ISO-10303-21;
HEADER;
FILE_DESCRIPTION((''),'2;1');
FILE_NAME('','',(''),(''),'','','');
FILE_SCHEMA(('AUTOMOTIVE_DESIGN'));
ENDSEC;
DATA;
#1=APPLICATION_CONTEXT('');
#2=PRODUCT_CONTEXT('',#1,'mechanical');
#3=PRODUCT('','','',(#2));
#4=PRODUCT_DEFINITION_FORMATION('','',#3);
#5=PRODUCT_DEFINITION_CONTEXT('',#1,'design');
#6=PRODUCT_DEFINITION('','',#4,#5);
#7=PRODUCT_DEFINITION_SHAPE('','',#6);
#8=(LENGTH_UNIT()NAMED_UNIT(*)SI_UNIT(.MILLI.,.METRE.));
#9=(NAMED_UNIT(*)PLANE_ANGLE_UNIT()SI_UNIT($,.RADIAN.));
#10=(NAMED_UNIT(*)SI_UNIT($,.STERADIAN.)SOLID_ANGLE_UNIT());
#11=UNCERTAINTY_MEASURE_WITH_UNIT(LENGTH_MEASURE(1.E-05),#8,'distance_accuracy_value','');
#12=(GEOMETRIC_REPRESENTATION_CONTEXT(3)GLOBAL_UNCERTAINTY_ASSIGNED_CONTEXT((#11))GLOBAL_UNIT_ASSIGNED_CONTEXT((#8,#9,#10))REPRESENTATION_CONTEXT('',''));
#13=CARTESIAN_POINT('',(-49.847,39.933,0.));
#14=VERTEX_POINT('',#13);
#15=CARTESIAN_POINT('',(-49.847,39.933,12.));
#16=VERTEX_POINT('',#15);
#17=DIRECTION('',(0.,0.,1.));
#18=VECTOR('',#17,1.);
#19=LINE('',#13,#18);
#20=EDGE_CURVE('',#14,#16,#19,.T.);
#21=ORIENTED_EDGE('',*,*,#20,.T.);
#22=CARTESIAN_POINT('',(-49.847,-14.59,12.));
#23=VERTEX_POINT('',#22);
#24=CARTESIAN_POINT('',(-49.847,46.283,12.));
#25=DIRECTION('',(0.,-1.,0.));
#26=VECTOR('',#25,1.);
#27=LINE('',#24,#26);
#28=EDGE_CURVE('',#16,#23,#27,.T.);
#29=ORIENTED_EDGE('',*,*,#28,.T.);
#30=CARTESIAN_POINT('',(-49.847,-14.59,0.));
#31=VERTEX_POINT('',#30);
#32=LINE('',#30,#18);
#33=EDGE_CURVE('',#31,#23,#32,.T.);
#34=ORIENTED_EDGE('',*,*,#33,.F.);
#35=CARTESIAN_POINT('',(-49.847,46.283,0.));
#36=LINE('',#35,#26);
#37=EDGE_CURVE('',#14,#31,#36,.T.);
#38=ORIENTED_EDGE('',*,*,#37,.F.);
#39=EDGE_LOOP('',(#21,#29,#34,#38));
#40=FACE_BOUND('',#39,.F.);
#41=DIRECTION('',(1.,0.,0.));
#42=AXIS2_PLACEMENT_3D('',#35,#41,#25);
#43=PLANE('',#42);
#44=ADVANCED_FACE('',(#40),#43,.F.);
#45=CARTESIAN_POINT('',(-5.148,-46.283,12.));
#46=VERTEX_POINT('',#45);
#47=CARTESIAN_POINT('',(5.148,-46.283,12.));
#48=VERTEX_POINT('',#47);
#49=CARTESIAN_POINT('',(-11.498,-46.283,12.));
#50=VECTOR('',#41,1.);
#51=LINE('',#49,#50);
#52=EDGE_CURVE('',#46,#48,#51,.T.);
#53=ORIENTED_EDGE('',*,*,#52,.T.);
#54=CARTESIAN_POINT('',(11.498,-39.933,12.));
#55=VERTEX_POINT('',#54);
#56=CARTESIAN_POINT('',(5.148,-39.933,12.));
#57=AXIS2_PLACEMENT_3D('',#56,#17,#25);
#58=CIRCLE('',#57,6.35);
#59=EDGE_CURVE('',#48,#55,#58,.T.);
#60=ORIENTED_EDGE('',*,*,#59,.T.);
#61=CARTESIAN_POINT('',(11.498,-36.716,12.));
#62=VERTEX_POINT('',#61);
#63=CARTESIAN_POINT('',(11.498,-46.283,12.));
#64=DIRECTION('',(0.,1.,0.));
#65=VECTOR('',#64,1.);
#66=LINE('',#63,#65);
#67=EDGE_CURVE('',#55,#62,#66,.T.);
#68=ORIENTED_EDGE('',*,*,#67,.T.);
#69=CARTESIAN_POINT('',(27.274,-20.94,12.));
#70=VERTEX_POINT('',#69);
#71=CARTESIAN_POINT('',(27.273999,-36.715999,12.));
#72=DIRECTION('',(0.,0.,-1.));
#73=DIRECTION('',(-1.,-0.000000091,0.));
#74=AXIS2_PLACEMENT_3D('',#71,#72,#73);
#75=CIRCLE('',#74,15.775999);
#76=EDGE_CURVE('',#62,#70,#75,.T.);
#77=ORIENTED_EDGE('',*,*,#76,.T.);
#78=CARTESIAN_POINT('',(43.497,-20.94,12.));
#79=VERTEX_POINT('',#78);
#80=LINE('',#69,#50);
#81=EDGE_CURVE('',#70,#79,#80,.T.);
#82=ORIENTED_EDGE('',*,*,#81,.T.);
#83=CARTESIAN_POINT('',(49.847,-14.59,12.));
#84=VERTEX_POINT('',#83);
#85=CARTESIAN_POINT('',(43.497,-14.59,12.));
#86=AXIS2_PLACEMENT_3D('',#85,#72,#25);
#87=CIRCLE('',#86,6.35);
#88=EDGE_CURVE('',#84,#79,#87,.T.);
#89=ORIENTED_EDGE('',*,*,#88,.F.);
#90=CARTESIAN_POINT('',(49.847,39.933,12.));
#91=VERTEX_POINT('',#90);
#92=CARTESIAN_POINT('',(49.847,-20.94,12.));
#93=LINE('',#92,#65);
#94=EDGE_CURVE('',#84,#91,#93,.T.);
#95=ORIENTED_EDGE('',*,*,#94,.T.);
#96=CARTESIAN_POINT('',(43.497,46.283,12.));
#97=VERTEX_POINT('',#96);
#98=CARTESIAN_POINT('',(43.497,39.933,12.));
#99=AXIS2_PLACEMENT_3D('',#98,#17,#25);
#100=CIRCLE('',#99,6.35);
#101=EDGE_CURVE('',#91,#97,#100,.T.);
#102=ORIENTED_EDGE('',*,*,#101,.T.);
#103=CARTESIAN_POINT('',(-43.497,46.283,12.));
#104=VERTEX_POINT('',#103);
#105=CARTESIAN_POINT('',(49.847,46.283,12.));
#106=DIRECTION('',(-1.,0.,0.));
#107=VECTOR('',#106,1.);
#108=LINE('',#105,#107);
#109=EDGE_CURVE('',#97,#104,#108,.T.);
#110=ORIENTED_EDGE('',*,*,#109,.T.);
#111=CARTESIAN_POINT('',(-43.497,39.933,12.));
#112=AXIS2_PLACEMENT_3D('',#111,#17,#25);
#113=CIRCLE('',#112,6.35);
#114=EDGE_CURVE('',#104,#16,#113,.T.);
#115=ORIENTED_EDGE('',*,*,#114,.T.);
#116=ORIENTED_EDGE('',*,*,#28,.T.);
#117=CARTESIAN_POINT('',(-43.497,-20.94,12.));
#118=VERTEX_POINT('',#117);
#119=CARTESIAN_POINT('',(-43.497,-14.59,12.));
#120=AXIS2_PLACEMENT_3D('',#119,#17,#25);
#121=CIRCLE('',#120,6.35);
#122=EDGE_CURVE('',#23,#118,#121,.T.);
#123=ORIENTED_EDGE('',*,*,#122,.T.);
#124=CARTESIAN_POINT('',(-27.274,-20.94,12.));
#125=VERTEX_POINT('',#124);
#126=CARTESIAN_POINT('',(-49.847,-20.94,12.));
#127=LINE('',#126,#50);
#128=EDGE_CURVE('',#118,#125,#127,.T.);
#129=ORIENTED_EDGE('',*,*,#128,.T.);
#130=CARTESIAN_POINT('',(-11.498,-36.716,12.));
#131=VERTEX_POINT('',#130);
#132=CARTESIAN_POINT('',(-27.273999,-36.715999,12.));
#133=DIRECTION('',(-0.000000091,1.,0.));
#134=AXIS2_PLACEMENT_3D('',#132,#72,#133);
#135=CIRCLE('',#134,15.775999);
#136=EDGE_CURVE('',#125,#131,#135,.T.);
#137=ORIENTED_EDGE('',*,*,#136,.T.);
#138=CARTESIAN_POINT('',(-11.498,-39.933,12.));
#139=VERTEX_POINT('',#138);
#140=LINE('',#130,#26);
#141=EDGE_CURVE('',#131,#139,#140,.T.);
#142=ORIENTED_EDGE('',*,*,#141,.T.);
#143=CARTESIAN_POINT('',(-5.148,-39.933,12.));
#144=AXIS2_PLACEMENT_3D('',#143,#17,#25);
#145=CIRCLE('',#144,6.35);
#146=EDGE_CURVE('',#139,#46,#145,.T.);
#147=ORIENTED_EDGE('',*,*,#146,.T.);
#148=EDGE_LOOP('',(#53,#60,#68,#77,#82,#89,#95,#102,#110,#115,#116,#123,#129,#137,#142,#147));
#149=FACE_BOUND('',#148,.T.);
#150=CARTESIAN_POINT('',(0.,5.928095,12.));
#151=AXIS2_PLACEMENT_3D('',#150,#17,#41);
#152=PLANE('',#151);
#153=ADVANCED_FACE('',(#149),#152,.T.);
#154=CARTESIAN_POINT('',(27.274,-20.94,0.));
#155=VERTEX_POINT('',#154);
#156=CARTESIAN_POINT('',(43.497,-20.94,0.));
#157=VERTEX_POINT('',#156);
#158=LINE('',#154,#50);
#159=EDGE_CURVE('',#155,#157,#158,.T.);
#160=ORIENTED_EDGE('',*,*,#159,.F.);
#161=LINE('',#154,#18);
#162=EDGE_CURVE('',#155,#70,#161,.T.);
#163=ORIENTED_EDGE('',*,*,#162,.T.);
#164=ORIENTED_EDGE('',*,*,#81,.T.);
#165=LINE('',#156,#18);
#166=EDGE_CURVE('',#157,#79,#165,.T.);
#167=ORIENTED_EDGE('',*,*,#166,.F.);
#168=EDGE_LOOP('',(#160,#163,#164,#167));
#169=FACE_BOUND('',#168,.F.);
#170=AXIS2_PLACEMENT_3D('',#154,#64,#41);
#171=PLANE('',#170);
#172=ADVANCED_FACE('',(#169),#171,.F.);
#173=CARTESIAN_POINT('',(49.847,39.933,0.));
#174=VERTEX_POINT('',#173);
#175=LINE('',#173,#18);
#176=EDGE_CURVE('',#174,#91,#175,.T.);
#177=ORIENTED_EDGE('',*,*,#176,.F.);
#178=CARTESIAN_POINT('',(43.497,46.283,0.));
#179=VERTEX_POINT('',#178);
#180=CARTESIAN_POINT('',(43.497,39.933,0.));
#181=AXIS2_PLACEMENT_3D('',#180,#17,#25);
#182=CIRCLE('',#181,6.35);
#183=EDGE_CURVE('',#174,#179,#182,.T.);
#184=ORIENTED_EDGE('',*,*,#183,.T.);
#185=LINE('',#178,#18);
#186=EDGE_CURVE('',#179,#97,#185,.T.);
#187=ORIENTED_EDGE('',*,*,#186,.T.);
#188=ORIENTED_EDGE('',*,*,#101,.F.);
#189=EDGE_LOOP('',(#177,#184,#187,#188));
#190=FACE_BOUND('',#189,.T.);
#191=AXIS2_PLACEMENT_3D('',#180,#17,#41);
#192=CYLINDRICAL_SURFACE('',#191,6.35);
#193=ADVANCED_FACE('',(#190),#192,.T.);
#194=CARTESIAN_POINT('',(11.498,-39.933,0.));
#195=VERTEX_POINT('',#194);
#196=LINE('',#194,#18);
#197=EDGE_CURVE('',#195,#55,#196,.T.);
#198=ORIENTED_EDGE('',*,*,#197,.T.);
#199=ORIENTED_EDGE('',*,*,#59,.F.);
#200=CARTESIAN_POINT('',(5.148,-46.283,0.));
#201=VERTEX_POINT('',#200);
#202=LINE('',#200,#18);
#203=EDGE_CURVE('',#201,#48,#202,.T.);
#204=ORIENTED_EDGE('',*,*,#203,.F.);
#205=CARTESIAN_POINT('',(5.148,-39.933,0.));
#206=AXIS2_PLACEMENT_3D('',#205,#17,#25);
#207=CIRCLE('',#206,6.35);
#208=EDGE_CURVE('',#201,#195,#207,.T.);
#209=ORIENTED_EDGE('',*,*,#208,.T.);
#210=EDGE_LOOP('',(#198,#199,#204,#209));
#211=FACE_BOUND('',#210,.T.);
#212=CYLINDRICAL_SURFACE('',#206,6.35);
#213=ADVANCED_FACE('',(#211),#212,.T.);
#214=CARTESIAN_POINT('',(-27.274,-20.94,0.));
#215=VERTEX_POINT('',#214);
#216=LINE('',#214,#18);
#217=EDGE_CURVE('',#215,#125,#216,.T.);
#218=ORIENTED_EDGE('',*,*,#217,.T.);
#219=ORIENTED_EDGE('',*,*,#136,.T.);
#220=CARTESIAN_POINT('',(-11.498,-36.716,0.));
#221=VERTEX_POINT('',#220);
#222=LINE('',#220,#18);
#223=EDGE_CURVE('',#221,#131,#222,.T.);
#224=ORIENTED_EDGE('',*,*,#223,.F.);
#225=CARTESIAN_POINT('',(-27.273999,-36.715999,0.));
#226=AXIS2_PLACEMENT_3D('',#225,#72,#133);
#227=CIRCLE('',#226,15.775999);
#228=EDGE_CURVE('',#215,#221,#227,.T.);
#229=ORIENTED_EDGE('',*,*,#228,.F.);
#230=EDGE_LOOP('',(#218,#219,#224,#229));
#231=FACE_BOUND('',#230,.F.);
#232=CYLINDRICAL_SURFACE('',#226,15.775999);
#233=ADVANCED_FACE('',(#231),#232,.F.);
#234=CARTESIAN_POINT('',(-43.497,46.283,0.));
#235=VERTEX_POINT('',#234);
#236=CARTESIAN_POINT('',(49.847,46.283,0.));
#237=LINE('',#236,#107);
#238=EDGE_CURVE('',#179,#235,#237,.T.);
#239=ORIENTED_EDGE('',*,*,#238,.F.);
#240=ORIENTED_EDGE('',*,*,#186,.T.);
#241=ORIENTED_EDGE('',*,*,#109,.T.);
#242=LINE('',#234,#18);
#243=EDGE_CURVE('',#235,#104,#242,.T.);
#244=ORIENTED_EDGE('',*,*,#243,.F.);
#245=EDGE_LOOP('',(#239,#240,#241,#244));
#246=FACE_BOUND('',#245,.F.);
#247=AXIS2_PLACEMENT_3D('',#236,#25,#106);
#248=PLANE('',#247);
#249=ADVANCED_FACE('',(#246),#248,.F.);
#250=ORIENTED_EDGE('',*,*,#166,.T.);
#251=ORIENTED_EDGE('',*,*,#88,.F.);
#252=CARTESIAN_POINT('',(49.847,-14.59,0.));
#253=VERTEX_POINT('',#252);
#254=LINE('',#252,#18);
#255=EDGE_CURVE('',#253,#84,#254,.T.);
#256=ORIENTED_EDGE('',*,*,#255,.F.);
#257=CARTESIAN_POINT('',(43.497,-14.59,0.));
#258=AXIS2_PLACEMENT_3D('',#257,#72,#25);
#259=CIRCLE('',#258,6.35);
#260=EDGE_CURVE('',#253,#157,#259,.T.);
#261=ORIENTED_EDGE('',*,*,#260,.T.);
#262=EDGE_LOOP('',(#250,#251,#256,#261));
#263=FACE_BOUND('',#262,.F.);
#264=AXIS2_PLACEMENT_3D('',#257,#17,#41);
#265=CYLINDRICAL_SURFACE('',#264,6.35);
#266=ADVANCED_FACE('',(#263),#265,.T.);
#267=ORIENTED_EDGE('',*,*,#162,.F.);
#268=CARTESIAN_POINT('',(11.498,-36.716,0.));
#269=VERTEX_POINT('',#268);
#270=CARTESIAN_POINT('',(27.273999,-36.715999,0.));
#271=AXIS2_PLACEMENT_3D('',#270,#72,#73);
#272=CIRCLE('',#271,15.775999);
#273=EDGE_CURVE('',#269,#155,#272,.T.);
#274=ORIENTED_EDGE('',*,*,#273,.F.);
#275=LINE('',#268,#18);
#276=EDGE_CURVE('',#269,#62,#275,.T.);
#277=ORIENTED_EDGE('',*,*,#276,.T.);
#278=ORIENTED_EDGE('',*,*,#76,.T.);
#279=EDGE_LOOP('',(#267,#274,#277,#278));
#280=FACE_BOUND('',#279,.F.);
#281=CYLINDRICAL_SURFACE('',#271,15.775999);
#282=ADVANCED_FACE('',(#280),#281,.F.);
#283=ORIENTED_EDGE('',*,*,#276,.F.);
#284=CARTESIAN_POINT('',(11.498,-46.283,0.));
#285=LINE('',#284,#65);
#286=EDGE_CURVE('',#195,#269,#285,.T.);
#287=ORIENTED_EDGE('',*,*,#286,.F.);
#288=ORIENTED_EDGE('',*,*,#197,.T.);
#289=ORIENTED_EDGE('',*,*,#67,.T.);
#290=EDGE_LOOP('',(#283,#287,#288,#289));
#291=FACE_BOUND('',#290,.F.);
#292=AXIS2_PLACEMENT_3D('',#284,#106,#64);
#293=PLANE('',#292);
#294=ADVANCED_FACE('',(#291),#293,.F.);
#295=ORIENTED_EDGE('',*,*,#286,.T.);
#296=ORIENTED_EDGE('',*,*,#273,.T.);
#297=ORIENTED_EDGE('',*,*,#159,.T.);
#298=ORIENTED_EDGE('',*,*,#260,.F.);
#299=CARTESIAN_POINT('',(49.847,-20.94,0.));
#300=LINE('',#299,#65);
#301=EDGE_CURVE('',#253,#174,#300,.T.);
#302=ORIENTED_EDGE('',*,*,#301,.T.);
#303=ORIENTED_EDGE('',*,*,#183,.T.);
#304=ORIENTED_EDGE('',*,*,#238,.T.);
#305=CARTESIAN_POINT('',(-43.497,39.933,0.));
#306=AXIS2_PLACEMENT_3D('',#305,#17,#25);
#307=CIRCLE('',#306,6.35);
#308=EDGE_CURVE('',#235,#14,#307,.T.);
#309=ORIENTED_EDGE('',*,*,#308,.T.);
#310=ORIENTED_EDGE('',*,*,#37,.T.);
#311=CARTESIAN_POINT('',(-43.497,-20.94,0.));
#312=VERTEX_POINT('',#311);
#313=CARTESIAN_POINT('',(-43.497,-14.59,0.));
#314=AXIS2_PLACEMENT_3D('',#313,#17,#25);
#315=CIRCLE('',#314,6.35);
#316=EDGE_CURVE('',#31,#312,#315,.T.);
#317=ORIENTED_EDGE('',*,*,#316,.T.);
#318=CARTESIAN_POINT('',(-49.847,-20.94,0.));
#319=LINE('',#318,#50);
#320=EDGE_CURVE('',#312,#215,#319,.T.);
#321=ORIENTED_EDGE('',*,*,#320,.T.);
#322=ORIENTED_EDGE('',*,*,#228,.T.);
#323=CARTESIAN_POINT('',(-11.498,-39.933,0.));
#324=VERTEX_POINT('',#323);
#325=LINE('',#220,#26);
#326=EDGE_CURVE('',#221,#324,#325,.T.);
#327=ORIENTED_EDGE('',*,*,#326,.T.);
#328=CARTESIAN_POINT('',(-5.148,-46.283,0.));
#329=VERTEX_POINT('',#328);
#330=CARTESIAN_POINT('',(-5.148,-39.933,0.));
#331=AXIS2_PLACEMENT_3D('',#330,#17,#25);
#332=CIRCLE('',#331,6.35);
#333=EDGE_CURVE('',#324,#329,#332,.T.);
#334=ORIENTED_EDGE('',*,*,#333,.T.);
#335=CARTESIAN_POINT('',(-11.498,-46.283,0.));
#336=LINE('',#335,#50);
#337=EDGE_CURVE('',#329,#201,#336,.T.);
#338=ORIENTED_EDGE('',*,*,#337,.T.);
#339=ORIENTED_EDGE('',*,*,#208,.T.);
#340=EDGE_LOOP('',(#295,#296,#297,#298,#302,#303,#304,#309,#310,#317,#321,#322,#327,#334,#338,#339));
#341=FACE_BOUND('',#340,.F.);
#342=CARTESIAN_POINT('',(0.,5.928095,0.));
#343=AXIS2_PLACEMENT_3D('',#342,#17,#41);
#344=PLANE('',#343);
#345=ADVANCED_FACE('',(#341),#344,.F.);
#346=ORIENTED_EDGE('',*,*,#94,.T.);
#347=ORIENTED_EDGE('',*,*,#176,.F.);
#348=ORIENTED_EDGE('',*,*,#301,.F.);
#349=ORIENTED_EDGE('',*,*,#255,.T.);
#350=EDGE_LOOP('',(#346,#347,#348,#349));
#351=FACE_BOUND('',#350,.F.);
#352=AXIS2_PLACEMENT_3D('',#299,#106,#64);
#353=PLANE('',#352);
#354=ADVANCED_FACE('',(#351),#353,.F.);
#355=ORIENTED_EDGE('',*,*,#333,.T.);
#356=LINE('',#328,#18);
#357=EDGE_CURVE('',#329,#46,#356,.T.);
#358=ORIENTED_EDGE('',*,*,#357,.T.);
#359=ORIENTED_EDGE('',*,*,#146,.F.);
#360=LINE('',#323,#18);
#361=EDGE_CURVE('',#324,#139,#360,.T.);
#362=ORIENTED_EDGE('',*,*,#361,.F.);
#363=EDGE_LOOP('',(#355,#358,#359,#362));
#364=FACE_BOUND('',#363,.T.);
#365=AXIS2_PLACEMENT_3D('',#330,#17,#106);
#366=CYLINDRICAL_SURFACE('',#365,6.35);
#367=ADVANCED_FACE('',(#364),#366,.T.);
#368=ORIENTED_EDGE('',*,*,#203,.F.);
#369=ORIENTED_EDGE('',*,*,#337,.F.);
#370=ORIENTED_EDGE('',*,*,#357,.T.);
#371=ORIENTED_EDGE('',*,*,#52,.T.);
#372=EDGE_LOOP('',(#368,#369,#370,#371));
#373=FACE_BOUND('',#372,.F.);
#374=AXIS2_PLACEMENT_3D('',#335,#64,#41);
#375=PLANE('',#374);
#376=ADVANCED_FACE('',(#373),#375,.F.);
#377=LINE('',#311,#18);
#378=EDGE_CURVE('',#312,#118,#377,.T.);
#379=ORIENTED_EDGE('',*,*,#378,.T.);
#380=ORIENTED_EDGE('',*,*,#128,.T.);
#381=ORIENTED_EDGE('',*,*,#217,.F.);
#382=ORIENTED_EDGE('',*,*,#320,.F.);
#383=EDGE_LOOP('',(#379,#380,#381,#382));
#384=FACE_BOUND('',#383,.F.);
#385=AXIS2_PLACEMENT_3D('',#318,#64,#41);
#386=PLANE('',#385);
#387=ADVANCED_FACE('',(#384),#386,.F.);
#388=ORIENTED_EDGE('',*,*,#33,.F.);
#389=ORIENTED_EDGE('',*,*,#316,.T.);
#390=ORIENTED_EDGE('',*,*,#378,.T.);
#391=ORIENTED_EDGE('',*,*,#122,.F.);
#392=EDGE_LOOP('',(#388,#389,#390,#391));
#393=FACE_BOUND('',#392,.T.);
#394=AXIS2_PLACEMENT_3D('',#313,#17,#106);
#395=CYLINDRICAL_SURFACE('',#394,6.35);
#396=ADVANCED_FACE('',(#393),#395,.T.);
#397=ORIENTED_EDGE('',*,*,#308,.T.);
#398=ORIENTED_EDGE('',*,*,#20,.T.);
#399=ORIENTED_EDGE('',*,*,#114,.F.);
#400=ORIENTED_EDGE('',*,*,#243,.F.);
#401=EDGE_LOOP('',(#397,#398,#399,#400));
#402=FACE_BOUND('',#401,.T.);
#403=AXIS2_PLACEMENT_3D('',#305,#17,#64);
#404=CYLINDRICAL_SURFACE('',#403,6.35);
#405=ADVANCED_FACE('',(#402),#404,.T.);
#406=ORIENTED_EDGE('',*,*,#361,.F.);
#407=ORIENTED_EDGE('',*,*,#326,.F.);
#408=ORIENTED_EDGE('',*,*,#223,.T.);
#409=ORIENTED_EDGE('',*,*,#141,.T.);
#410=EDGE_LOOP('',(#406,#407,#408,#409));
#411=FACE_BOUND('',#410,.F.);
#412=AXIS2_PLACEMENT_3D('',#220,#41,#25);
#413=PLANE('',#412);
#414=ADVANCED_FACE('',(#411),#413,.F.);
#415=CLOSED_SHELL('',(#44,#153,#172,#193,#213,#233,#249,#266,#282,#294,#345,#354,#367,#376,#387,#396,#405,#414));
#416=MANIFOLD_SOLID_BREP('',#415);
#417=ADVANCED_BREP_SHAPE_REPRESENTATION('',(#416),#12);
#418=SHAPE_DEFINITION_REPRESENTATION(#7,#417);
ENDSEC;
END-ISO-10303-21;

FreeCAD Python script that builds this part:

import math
import FreeCAD as App
import Part
import Sketcher
from FreeCAD import Vector
Q = App.Units.Quantity


def edges_at(feature, points):
    """Names of the edges that pass closest to the given points."""
    edges = feature.Shape.Edges
    near = lambda p: min(range(len(edges)), key=lambda i: edges[i].distToShape(Part.Vertex(*p))[0])
    return sorted({f"Edge{near(p) + 1}" for p in points})

doc = App.newDocument("Part")
body = doc.addObject("PartDesign::Body", "Body")

sketch1 = body.newObject("Sketcher::SketchObject", "Sketch")
sketch1.AttachmentSupport = (doc.getObject("XY_Plane"), [""])
sketch1.MapMode = "FlatFace"
sketch1.addGeometry([
    Part.LineSegment(Vector(50, -21, 0), Vector(50, 46, 0)),
    Part.LineSegment(Vector(50, 46, 0), Vector(-50, 46, 0)),
    Part.LineSegment(Vector(-50, 46, 0), Vector(-50, -21, 0)),
    Part.LineSegment(Vector(-50, -21, 0), Vector(-27, -21, 0)),
    Part.ArcOfCircle(Part.Circle(Vector(-27, -37, 0), Vector(0, 0, 1), 16), math.radians(0), math.radians(90)),
    Part.LineSegment(Vector(-11, -37, 0), Vector(-11, -46, 0)),
    Part.LineSegment(Vector(-11, -46, 0), Vector(11, -46, 0)),
    Part.LineSegment(Vector(11, -46, 0), Vector(11, -37, 0)),
    Part.ArcOfCircle(Part.Circle(Vector(27, -37, 0), Vector(0, 0, 1), 16), math.radians(90), math.radians(180)),
    Part.LineSegment(Vector(27, -21, 0), Vector(50, -21, 0)),
], False)
sketch1.addConstraint([
    Sketcher.Constraint("Coincident", 0, 2, 1, 1),
    Sketcher.Constraint("Coincident", 1, 2, 2, 1),
    Sketcher.Constraint("Coincident", 2, 2, 3, 1),
    Sketcher.Constraint("Tangent", 3, 2, 4, 2),
    Sketcher.Constraint("Tangent", 4, 1, 5, 1),
    Sketcher.Constraint("Coincident", 5, 2, 6, 1),
    Sketcher.Constraint("Coincident", 6, 2, 7, 1),
    Sketcher.Constraint("Tangent", 7, 2, 8, 2),
    Sketcher.Constraint("Tangent", 8, 1, 9, 1),
    Sketcher.Constraint("Coincident", 9, 2, 0, 1),
    Sketcher.Constraint("Vertical", 0),
    Sketcher.Constraint("Horizontal", 1),
    Sketcher.Constraint("Vertical", 2),
    Sketcher.Constraint("Horizontal", 3),
    Sketcher.Constraint("Vertical", 5),
    Sketcher.Constraint("Horizontal", 6),
    Sketcher.Constraint("Vertical", 7),
    Sketcher.Constraint("Horizontal", 9),
    Sketcher.Constraint("Equal", 4, 8),
    Sketcher.Constraint("Symmetric", 4, 3, 8, 3, -2),
    Sketcher.Constraint("Equal", 3, 9),
    Sketcher.Constraint("Radius", 4, Q("15.775999 mm")),
    Sketcher.Constraint("DistanceX", 1, 2, 1, 1, Q("99.694 mm")),
    Sketcher.Constraint("DistanceX", 3, 1, 3, 2, Q("22.573 mm")),
    Sketcher.Constraint("DistanceY", 0, 1, 0, 2, Q("67.223 mm")),
    Sketcher.Constraint("DistanceY", 5, 2, 5, 1, Q("9.567 mm")),
    Sketcher.Constraint("DistanceY", 2, 2, -1, 1, Q("20.94 mm")),
])
pad1 = body.newObject("PartDesign::Pad", "Pad")
pad1.Profile = sketch1
pad1.Length = 12
doc.recompute()

fillet = body.newObject("PartDesign::Fillet", "Fillet")
fillet.Base = (pad1, edges_at(pad1, [
    (-49.847, 46.283, 6),
    (-49.847, -20.94, 6),
    (-11.498, -46.283, 6),
    (11.498, -46.283, 6),
    (49.847, -20.94, 6),
    (49.847, 46.283, 6),
]))
fillet.Radius = 6.35

doc.recompute()
